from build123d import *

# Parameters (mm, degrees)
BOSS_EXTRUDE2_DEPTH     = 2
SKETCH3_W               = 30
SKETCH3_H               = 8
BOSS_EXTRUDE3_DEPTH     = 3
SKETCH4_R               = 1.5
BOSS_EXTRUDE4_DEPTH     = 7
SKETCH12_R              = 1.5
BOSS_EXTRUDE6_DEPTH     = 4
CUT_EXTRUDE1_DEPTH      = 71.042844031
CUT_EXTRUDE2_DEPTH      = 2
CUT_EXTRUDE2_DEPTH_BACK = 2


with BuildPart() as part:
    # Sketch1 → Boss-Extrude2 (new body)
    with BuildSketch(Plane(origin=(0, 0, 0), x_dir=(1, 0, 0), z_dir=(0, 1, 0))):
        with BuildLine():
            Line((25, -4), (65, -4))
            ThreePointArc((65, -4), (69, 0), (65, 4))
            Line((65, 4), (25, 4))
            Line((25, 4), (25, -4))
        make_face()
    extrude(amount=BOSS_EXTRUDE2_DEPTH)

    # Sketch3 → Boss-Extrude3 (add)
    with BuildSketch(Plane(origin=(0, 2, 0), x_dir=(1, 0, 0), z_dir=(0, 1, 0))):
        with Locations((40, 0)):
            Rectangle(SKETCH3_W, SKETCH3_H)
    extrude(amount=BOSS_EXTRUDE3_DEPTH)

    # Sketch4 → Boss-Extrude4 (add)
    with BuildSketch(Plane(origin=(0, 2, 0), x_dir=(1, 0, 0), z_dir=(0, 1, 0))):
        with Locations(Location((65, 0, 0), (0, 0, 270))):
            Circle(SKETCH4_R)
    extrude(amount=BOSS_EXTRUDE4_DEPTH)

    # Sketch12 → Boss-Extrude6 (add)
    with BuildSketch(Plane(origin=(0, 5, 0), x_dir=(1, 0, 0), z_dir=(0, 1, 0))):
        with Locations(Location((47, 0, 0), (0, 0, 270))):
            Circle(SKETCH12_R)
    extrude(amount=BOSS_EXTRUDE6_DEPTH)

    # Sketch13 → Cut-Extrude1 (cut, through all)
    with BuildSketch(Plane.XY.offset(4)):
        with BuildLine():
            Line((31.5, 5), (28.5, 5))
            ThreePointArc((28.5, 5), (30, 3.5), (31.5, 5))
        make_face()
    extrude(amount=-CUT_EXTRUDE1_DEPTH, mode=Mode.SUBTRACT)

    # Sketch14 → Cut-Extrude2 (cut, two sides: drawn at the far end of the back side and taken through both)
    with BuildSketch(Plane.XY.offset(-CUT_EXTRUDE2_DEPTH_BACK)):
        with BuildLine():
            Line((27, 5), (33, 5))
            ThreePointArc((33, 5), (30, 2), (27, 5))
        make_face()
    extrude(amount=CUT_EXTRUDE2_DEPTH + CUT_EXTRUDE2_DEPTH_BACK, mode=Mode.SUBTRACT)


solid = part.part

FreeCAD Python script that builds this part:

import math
import FreeCAD as App
import Part
import Sketcher

doc = App.newDocument("Part")
body = doc.addObject("PartDesign::Body", "Body")

# Sketch on XZ plane
sketch1 = doc.addObject("Sketcher::SketchObject", "Sketch")
body.addObject(sketch1)
sketch1.AttachmentSupport = (doc.XZ_Plane, [""])
sketch1.MapMode = "FlatFace"
sketch1.addGeometry(Part.LineSegment(App.Vector(25, 4, 0), App.Vector(65, 4, 0)), False)
sketch1.addGeometry(Part.ArcOfCircle(Part.Circle(App.Vector(65, 0, 0), App.Vector(0, 0, 1), 4), math.radians(-90), math.radians(90)), False)
sketch1.addGeometry(Part.LineSegment(App.Vector(65, -4, 0), App.Vector(25, -4, 0)), False)
sketch1.addGeometry(Part.LineSegment(App.Vector(25, -4, 0), App.Vector(25, 4, 0)), False)
sketch1.addConstraint(Sketcher.Constraint("Tangent", 0, 2, 1, 2))
sketch1.addConstraint(Sketcher.Constraint("Tangent", 1, 1, 2, 1))
sketch1.addConstraint(Sketcher.Constraint("Coincident", 2, 2, 3, 1))
sketch1.addConstraint(Sketcher.Constraint("Coincident", 3, 2, 0, 1))
sketch1.addConstraint(Sketcher.Constraint("Horizontal", 0))
sketch1.addConstraint(Sketcher.Constraint("Horizontal", 2))
sketch1.addConstraint(Sketcher.Constraint("Vertical", 3))
sketch1.addConstraint(Sketcher.Constraint("PointOnObject", 1, 3, -1))
sketch1.addConstraint(Sketcher.Constraint("Radius", 1, 4.0))
sketch1.addConstraint(Sketcher.Constraint("DistanceX", 0, 1, 0, 2, 40.0))
sketch1.addConstraint(Sketcher.Constraint("DistanceX", -1, 1, 1, 3, 65.0))
pad1 = doc.addObject("PartDesign::Pad", "Pad")
body.addObject(pad1)
pad1.Profile = sketch1
pad1.Length = 2
pad1.Reversed = True

# Sketch on XZ plane
sketch2 = doc.addObject("Sketcher::SketchObject", "Sketch001")
body.addObject(sketch2)
sketch2.AttachmentSupport = (doc.XZ_Plane, [""])
sketch2.MapMode = "FlatFace"
sketch2.AttachmentOffset = App.Placement(App.Vector(0, 0, -2), App.Rotation())
sketch2.addGeometry(Part.LineSegment(App.Vector(25, -4, 0), App.Vector(25, 4, 0)), False)
sketch2.addGeometry(Part.LineSegment(App.Vector(25, 4, 0), App.Vector(55, 4, 0)), False)
sketch2.addGeometry(Part.LineSegment(App.Vector(55, 4, 0), App.Vector(55, -4, 0)), False)
sketch2.addGeometry(Part.LineSegment(App.Vector(55, -4, 0), App.Vector(25, -4, 0)), False)
sketch2.addConstraint(Sketcher.Constraint("Coincident", 0, 2, 1, 1))
sketch2.addConstraint(Sketcher.Constraint("Coincident", 1, 2, 2, 1))
sketch2.addConstraint(Sketcher.Constraint("Coincident", 2, 2, 3, 1))
sketch2.addConstraint(Sketcher.Constraint("Coincident", 3, 2, 0, 1))
sketch2.addConstraint(Sketcher.Constraint("Vertical", 0))
sketch2.addConstraint(Sketcher.Constraint("Horizontal", 1))
sketch2.addConstraint(Sketcher.Constraint("Vertical", 2))
sketch2.addConstraint(Sketcher.Constraint("Horizontal", 3))
sketch2.addConstraint(Sketcher.Constraint("DistanceX", 1, 1, 1, 2, 30.0))
sketch2.addConstraint(Sketcher.Constraint("DistanceY", 0, 1, 0, 2, 8.0))
sketch2.addConstraint(Sketcher.Constraint("DistanceX", -1, 1, 0, 2, 25.0))
sketch2.addConstraint(Sketcher.Constraint("DistanceY", -1, 1, 0, 2, 4.0))
pad2 = doc.addObject("PartDesign::Pad", "Pad001")
body.addObject(pad2)
pad2.Profile = sketch2
pad2.Length = 3
pad2.Reversed = True

# Sketch on XZ plane
sketch3 = doc.addObject("Sketcher::SketchObject", "Sketch002")
body.addObject(sketch3)
sketch3.AttachmentSupport = (doc.XZ_Plane, [""])
sketch3.MapMode = "FlatFace"
sketch3.AttachmentOffset = App.Placement(App.Vector(0, 0, -2), App.Rotation())
sketch3.addGeometry(Part.Circle(App.Vector(65, 0, 0), App.Vector(0, 0, 1), 1.5), False)
sketch3.addConstraint(Sketcher.Constraint("PointOnObject", 0, 3, -1))
sketch3.addConstraint(Sketcher.Constraint("Diameter", 0, 3.0))
sketch3.addConstraint(Sketcher.Constraint("DistanceX", -1, 1, 0, 3, 65.0))
pad3 = doc.addObject("PartDesign::Pad", "Pad002")
body.addObject(pad3)
pad3.Profile = sketch3
pad3.Length = 7
pad3.Reversed = True

# Sketch on XZ plane
sketch4 = doc.addObject("Sketcher::SketchObject", "Sketch003")
body.addObject(sketch4)
sketch4.AttachmentSupport = (doc.XZ_Plane, [""])
sketch4.MapMode = "FlatFace"
sketch4.AttachmentOffset = App.Placement(App.Vector(0, 0, -5), App.Rotation())
sketch4.addGeometry(Part.Circle(App.Vector(47, 0, 0), App.Vector(0, 0, 1), 1.5), False)
sketch4.addConstraint(Sketcher.Constraint("PointOnObject", 0, 3, -1))
sketch4.addConstraint(Sketcher.Constraint("Diameter", 0, 3.0))
sketch4.addConstraint(Sketcher.Constraint("DistanceX", -1, 1, 0, 3, 47.0))
pad4 = doc.addObject("PartDesign::Pad", "Pad003")
body.addObject(pad4)
pad4.Profile = sketch4
pad4.Length = 4
pad4.Reversed = True

# Sketch on XY plane
sketch5 = doc.addObject("Sketcher::SketchObject", "Sketch004")
body.addObject(sketch5)
sketch5.AttachmentSupport = (doc.XY_Plane, [""])
sketch5.MapMode = "FlatFace"
sketch5.AttachmentOffset = App.Placement(App.Vector(0, 0, 4), App.Rotation())
sketch5.addGeometry(Part.LineSegment(App.Vector(31.5, 5, 0), App.Vector(28.5, 5, 0)), False)
sketch5.addGeometry(Part.ArcOfCircle(Part.Circle(App.Vector(30, 5, 0), App.Vector(0, 0, 1), 1.5), math.radians(180), math.radians(360)), False)
sketch5.addConstraint(Sketcher.Constraint("Coincident", 0, 1, 1, 2))
sketch5.addConstraint(Sketcher.Constraint("Coincident", 1, 1, 0, 2))
sketch5.addConstraint(Sketcher.Constraint("Horizontal", 0))
sketch5.addConstraint(Sketcher.Constraint("Horizontal", 1, 3, 0, 1))
sketch5.addConstraint(Sketcher.Constraint("Radius", 1, 1.5))
sketch5.addConstraint(Sketcher.Constraint("DistanceX", -1, 1, 1, 3, 30.0))
sketch5.addConstraint(Sketcher.Constraint("DistanceY", -1, 1, 1, 3, 5.0))
pocket1 = doc.addObject("PartDesign::Pocket", "Pocket")
body.addObject(pocket1)
pocket1.Profile = sketch5
pocket1.Type = "ThroughAll"

# Sketch on XY plane
sketch6 = doc.addObject("Sketcher::SketchObject", "Sketch005")
body.addObject(sketch6)
sketch6.AttachmentSupport = (doc.XY_Plane, [""])
sketch6.MapMode = "FlatFace"
sketch6.addGeometry(Part.LineSegment(App.Vector(33, 5, 0), App.Vector(27, 5, 0)), False)
sketch6.addGeometry(Part.ArcOfCircle(Part.Circle(App.Vector(30, 5, 0), App.Vector(0, 0, 1), 3), math.radians(180), math.radians(360)), False)
sketch6.addConstraint(Sketcher.Constraint("Coincident", 0, 1, 1, 2))
sketch6.addConstraint(Sketcher.Constraint("Coincident", 1, 1, 0, 2))
sketch6.addConstraint(Sketcher.Constraint("Horizontal", 0))
sketch6.addConstraint(Sketcher.Constraint("Horizontal", 1, 3, 0, 1))
sketch6.addConstraint(Sketcher.Constraint("Radius", 1, 3.0))
sketch6.addConstraint(Sketcher.Constraint("DistanceX", -1, 1, 1, 3, 30.0))
sketch6.addConstraint(Sketcher.Constraint("DistanceY", -1, 1, 1, 3, 5.0))
pocket2 = doc.addObject("PartDesign::Pocket", "Pocket001")
body.addObject(pocket2)
pocket2.Profile = sketch6
pocket2.Type = "TwoLengths"
pocket2.Length = 2
pocket2.Length2 = 2
pocket2.Reversed = True

doc.recompute()
